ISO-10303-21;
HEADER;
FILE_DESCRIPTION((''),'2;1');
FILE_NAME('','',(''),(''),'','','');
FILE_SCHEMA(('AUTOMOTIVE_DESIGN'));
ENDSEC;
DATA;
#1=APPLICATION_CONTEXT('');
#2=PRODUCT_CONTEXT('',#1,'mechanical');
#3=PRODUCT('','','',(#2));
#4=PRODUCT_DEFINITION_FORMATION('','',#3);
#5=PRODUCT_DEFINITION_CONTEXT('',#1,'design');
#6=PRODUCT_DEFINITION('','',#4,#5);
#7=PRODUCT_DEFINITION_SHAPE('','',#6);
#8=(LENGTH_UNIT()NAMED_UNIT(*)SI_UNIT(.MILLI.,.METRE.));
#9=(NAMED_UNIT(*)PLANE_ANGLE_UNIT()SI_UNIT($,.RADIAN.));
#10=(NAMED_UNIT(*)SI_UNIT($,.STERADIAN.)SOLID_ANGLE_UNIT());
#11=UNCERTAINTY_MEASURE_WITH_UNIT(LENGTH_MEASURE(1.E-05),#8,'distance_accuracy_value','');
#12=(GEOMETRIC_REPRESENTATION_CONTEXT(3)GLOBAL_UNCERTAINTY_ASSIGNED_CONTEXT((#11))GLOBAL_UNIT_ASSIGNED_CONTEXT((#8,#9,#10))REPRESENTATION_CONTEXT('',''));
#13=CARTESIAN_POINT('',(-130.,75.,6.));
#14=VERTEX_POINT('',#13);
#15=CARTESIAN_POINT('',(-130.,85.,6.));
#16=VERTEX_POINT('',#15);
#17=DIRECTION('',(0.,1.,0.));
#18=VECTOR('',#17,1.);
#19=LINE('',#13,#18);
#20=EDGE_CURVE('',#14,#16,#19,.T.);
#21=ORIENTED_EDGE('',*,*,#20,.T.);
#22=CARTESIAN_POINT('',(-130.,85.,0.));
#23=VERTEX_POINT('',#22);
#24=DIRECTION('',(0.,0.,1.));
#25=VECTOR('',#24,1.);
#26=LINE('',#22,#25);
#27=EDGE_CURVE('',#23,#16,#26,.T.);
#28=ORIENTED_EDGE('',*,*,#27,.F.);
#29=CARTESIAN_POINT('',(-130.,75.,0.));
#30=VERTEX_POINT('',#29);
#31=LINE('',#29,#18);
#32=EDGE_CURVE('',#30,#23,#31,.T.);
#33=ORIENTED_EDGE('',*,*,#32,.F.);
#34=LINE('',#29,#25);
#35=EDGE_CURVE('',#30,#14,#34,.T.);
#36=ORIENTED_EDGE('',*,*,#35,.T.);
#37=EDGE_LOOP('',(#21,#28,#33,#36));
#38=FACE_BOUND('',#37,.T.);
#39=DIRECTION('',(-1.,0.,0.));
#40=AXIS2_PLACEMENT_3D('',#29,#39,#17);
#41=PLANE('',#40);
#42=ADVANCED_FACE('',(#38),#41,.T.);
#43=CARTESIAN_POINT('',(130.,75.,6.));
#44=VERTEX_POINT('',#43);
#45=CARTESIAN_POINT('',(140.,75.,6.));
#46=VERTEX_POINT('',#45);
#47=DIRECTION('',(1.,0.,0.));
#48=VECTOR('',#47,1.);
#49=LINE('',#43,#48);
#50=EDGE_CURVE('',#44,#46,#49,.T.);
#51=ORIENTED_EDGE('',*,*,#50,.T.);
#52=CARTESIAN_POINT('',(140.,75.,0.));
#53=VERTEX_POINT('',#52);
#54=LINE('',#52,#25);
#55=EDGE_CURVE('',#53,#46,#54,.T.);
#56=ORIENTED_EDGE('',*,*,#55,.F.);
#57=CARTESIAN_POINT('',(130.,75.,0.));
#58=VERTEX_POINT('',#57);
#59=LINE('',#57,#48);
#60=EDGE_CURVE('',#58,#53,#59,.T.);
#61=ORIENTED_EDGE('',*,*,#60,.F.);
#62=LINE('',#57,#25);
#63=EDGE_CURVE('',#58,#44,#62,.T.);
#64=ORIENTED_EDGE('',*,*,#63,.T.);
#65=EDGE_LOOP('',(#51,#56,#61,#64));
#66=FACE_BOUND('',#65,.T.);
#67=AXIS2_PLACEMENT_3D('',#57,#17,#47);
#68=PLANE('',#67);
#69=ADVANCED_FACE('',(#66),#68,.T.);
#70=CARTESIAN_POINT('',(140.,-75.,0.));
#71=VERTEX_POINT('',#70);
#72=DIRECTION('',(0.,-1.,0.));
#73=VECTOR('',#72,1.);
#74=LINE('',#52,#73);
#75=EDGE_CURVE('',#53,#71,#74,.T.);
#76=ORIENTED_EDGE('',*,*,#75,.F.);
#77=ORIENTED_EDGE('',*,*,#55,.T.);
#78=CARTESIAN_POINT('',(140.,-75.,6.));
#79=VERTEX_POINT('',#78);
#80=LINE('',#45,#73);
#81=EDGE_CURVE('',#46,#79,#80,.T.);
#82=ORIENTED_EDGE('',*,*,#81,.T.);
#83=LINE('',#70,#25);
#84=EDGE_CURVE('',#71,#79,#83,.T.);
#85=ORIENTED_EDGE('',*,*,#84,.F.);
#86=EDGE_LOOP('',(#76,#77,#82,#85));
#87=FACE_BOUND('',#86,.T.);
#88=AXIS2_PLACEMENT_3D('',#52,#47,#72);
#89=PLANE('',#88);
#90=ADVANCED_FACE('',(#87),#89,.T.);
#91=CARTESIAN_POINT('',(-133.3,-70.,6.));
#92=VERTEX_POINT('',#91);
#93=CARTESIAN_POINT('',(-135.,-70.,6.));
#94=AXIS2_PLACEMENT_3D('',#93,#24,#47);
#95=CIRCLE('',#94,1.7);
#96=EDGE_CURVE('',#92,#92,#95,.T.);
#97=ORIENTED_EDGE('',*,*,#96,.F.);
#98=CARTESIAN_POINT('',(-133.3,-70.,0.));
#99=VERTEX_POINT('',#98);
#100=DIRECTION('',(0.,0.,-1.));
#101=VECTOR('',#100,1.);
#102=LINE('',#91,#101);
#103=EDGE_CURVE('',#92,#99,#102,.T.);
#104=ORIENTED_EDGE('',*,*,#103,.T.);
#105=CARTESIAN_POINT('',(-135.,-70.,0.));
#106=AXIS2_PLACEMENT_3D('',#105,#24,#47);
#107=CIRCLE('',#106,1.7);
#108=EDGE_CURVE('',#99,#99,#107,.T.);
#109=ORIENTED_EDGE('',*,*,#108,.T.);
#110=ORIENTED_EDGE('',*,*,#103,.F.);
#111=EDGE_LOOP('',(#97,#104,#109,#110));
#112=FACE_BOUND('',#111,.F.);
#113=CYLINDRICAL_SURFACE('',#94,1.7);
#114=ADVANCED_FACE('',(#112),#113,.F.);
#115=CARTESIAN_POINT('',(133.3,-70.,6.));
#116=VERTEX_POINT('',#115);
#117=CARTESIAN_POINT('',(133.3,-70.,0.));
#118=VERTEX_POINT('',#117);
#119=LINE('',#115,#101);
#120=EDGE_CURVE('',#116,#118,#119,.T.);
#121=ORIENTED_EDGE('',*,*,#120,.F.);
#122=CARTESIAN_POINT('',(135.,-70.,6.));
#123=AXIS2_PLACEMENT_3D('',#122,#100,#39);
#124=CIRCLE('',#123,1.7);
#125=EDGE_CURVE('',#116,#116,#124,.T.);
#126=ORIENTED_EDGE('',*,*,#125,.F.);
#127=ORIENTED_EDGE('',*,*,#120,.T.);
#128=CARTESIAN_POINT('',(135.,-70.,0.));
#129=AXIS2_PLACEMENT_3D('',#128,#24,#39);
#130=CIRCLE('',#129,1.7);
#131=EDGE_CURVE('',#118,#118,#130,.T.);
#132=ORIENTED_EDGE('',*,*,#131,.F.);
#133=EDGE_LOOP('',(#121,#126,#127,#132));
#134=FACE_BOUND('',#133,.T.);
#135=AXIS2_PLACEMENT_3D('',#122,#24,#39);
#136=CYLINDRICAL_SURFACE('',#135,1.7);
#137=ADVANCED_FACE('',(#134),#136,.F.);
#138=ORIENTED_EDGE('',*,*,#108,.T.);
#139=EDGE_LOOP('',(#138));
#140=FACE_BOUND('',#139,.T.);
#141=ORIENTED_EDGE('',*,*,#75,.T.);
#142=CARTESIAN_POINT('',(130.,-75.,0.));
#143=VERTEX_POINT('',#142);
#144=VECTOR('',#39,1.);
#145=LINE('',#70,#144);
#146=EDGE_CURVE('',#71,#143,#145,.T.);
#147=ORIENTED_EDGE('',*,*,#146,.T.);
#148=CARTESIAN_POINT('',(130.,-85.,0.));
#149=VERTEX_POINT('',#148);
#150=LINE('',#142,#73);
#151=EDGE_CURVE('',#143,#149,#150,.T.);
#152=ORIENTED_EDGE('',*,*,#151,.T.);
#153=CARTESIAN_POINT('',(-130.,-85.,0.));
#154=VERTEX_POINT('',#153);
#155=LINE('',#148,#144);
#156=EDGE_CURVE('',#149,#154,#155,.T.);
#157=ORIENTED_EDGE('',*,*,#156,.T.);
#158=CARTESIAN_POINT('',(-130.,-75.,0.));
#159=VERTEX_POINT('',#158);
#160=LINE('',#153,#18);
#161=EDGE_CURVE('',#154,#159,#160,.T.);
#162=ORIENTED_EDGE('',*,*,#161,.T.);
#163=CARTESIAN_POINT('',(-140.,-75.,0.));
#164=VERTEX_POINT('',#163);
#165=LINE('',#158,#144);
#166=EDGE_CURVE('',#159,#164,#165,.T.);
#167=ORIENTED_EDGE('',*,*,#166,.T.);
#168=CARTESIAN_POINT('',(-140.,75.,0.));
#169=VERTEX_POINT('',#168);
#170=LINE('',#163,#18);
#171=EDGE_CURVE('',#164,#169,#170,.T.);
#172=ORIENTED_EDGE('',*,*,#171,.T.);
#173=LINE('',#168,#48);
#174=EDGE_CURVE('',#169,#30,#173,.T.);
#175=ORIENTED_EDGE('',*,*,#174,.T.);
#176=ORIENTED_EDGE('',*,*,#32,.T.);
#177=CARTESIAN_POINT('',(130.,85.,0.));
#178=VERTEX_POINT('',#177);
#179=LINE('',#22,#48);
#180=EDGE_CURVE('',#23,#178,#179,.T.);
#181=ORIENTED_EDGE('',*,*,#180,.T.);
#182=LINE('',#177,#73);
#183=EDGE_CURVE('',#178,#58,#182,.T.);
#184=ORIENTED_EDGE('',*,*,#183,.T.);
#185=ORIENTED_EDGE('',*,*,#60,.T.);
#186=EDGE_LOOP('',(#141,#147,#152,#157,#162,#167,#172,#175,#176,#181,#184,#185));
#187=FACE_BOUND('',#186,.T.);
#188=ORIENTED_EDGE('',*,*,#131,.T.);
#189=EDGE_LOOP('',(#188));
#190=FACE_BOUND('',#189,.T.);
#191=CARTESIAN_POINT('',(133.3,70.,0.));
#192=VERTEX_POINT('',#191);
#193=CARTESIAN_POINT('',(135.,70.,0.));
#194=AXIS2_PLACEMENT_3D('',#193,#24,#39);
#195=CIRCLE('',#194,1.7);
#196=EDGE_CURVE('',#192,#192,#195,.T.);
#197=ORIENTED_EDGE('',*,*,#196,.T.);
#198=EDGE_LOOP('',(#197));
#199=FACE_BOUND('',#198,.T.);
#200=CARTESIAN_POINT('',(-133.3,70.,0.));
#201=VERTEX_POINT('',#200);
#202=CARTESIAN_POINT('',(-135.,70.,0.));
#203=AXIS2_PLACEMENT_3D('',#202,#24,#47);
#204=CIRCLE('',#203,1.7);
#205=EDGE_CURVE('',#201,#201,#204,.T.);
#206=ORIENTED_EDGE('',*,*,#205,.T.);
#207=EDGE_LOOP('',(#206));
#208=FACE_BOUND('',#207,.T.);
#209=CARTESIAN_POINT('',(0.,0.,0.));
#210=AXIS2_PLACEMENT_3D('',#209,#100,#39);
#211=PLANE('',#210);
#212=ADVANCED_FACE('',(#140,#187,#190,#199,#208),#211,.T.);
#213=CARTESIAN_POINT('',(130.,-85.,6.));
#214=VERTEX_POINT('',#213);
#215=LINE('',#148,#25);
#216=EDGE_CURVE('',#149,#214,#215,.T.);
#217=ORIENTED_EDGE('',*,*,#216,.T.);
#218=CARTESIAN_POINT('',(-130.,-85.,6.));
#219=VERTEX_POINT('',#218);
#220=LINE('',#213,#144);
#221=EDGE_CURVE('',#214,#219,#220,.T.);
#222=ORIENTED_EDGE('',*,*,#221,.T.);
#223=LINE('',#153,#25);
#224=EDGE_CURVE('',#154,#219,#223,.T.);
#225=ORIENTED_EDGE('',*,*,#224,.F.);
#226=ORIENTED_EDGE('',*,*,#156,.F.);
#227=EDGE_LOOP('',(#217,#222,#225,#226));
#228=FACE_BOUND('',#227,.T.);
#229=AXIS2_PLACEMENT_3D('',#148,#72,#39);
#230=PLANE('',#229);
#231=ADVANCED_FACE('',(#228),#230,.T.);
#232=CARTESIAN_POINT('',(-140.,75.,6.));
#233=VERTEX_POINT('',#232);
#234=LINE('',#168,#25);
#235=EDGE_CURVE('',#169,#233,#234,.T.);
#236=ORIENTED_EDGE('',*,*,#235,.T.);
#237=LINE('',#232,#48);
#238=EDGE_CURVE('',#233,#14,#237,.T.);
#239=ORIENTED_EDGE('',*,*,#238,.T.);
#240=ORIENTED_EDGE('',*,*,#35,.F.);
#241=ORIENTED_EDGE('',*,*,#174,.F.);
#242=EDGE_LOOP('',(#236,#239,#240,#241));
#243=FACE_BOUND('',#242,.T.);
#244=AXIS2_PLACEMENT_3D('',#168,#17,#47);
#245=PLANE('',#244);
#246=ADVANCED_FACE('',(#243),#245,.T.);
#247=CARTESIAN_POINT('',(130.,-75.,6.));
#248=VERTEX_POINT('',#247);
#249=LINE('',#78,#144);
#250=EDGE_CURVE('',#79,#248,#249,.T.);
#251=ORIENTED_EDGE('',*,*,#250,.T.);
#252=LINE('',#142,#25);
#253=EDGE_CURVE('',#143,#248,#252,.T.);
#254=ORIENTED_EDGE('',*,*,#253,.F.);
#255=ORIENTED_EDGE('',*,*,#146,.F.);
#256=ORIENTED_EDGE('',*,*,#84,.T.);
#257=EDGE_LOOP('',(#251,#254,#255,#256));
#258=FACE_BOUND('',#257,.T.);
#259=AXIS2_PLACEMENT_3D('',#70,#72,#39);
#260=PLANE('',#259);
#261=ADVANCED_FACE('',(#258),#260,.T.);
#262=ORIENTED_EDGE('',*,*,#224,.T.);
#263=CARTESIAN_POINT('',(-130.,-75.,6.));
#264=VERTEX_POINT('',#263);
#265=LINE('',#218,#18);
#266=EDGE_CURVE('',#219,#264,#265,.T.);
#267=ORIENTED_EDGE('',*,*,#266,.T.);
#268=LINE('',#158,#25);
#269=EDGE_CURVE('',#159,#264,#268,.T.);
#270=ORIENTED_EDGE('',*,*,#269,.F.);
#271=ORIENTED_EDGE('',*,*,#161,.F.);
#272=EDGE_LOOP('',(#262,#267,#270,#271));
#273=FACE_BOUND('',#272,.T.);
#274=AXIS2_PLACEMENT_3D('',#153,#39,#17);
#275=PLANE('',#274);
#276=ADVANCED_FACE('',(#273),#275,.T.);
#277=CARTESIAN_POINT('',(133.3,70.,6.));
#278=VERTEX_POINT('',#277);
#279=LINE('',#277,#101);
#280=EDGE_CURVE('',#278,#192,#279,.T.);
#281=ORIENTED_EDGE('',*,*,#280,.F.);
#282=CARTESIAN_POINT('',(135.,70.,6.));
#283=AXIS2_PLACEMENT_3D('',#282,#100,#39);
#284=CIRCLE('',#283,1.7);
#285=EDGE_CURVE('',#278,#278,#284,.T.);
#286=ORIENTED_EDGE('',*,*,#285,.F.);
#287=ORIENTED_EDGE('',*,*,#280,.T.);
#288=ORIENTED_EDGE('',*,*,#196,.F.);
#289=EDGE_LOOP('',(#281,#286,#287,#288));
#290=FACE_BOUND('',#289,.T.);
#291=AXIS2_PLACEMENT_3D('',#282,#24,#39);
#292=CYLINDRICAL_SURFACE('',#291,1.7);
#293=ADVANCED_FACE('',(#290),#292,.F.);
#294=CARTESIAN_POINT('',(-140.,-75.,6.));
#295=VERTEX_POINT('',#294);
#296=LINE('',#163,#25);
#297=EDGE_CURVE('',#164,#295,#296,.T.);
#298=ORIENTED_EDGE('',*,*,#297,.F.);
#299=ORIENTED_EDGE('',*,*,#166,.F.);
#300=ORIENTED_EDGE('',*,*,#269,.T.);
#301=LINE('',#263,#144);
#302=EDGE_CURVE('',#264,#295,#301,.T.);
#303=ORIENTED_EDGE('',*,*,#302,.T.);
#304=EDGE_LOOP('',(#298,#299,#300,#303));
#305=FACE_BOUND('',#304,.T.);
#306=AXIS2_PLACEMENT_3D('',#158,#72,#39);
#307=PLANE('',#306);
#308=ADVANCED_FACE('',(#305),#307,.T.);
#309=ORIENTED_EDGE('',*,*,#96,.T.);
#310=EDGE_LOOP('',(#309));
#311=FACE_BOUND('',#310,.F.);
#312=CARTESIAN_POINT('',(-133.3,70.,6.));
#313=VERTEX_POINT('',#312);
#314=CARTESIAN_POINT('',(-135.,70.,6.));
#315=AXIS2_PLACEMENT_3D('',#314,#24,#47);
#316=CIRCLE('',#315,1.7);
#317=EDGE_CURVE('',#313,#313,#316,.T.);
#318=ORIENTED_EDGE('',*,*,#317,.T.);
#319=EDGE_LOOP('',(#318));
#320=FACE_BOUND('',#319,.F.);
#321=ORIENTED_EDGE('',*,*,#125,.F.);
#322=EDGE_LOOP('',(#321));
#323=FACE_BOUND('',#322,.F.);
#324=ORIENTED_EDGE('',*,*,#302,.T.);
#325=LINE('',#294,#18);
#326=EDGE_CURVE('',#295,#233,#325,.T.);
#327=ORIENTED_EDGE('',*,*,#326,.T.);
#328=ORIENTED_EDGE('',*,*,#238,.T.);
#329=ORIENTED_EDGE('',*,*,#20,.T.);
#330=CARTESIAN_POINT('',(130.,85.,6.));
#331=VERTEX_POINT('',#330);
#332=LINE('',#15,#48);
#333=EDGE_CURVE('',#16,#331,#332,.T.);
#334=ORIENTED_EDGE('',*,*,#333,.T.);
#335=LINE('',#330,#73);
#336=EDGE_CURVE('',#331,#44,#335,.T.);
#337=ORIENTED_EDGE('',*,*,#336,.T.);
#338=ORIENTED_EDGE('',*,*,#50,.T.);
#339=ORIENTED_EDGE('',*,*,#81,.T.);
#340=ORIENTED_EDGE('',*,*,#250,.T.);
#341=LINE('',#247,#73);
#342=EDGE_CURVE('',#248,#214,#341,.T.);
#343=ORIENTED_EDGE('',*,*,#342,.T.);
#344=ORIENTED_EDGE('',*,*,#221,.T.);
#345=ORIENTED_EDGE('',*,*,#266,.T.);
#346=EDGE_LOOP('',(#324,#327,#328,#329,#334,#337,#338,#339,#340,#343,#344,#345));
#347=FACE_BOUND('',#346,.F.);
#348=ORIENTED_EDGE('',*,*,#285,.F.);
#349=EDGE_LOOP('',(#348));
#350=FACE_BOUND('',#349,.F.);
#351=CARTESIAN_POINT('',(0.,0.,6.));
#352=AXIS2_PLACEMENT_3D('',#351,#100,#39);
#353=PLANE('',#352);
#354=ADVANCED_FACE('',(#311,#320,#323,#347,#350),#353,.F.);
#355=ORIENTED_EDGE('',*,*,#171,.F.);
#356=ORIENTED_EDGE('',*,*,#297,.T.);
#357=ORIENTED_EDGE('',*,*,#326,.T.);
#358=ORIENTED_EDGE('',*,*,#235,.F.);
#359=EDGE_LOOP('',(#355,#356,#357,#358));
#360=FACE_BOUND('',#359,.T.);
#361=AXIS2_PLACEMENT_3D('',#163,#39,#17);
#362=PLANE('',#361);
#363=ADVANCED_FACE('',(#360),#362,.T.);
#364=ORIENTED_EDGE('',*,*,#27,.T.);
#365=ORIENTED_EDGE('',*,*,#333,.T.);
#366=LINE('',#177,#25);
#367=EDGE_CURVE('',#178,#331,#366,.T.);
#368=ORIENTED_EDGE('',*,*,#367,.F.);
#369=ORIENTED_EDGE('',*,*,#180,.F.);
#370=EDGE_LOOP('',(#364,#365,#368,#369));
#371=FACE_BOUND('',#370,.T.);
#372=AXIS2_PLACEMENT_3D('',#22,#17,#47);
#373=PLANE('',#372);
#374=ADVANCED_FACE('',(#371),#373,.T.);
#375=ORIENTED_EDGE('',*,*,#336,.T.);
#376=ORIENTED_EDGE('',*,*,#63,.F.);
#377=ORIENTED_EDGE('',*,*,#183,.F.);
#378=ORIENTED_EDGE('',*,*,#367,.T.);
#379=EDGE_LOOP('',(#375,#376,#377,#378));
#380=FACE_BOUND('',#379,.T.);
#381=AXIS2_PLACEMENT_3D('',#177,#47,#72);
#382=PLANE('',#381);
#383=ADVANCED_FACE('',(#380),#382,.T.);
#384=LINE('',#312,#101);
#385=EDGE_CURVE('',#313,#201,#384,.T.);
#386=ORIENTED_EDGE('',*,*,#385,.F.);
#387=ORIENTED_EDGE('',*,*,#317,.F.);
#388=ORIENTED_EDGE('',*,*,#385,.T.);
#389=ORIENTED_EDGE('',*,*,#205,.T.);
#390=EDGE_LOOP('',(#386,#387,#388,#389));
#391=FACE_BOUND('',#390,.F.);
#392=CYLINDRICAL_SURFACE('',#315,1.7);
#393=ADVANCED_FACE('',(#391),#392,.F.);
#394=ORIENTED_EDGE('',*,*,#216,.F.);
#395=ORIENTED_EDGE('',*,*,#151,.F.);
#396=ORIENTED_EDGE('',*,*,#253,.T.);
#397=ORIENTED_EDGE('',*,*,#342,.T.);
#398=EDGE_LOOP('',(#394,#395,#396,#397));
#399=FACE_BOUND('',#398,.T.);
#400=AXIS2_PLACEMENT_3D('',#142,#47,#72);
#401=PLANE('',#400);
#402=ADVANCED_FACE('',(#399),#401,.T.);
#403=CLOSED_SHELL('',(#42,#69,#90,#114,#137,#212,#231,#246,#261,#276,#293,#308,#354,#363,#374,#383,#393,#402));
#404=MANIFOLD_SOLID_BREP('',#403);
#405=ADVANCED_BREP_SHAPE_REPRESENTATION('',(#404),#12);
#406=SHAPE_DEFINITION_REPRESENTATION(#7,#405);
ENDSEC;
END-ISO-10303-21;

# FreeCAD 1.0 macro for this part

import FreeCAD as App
import Part
import Sketcher
from FreeCAD import Vector
Q = App.Units.Quantity


def add_polygon(sketch, points):
    """Adds a closed chain of lines whose ends are joined by coincident constraints."""
    first, n = sketch.GeometryCount, len(points)
    for a, b in zip(points, points[1:] + points[:1]):
        sketch.addGeometry(Part.LineSegment(App.Vector(*a, 0), App.Vector(*b, 0)), False)
    for i in range(n):
        sketch.addConstraint(Sketcher.Constraint("Coincident", first + i, 2, first + (i + 1) % n, 1))

doc = App.newDocument("Part")
body = doc.addObject("PartDesign::Body", "Body")

# Sketch on XY plane
sketch1 = doc.addObject("Sketcher::SketchObject", "Sketch")
body.addObject(sketch1)
sketch1.AttachmentSupport = (doc.XY_Plane, [""])
sketch1.MapMode = "FlatFace"
add_polygon(sketch1, [(-140, 75), (-140, -75), (-130, -75), (-130, -85), (130, -85), (130, -75), (140, -75), (140, 75), (130, 75), (130, 85), (-130, 85), (-130, 75)])  # lines 0-11
sketch1.addConstraint([
    Sketcher.Constraint("Vertical", 0),
    Sketcher.Constraint("Horizontal", 1),
    Sketcher.Constraint("Vertical", 2),
    Sketcher.Constraint("Horizontal", 3),
    Sketcher.Constraint("Vertical", 4),
    Sketcher.Constraint("Horizontal", 5),
    Sketcher.Constraint("Vertical", 6),
    Sketcher.Constraint("Horizontal", 7),
    Sketcher.Constraint("Vertical", 8),
    Sketcher.Constraint("Horizontal", 9),
    Sketcher.Constraint("Vertical", 10),
    Sketcher.Constraint("Horizontal", 11),
    Sketcher.Constraint("Symmetric", 0, 2, 6, 2, -1, 1),
    Sketcher.Constraint("Symmetric", 2, 2, 8, 2, -1, 1),
    Sketcher.Constraint("Symmetric", 4, 2, 10, 2, -1, 1),
    Sketcher.Constraint("Symmetric", 1, 2, 4, 2, -2),
    Sketcher.Constraint("Equal", 11, 2),
    Sketcher.Constraint("DistanceX", 1, 1, 1, 2, Q("10 mm")),
    Sketcher.Constraint("DistanceX", 3, 1, 3, 2, Q("260 mm")),
    Sketcher.Constraint("DistanceY", 0, 2, 0, 1, Q("150 mm")),
])
pad1 = doc.addObject("PartDesign::Pad", "Pad")
body.addObject(pad1)
pad1.Profile = sketch1
pad1.Length = 6

# Sketch on XY plane
sketch2 = doc.addObject("Sketcher::SketchObject", "Sketch001")
body.addObject(sketch2)
sketch2.AttachmentSupport = (doc.XY_Plane, [""])
sketch2.MapMode = "FlatFace"
sketch2.AttachmentOffset = App.Placement(Vector(0, 0, 6), App.Rotation())
sketch2.addGeometry([
    Part.Circle(Vector(-135, 70, 0), Vector(0, 0, 1), 1.7),
    Part.Circle(Vector(-135, -70, 0), Vector(0, 0, 1), 1.7),
], False)
sketch2.addConstraint([
    Sketcher.Constraint("Equal", 0, 1),
    Sketcher.Constraint("Symmetric", 0, 3, 1, 3, -1),
    Sketcher.Constraint("Diameter", 0, Q("3.4 mm")),
    Sketcher.Constraint("DistanceX", 0, 3, -1, 1, Q("135 mm")),
    Sketcher.Constraint("DistanceY", -1, 1, 0, 3, Q("70 mm")),
])
pocket1 = doc.addObject("PartDesign::Pocket", "Pocket")
body.addObject(pocket1)
pocket1.Profile = sketch2
pocket1.Type = "ThroughAll"
doc.recompute()

mirrored = doc.addObject("PartDesign::Mirrored", "Mirrored")
body.addObject(mirrored)
mirrored.Originals = [pocket1]
mirrored.MirrorPlane = (doc.YZ_Plane, [""])
body.Tip = mirrored

doc.recompute()
